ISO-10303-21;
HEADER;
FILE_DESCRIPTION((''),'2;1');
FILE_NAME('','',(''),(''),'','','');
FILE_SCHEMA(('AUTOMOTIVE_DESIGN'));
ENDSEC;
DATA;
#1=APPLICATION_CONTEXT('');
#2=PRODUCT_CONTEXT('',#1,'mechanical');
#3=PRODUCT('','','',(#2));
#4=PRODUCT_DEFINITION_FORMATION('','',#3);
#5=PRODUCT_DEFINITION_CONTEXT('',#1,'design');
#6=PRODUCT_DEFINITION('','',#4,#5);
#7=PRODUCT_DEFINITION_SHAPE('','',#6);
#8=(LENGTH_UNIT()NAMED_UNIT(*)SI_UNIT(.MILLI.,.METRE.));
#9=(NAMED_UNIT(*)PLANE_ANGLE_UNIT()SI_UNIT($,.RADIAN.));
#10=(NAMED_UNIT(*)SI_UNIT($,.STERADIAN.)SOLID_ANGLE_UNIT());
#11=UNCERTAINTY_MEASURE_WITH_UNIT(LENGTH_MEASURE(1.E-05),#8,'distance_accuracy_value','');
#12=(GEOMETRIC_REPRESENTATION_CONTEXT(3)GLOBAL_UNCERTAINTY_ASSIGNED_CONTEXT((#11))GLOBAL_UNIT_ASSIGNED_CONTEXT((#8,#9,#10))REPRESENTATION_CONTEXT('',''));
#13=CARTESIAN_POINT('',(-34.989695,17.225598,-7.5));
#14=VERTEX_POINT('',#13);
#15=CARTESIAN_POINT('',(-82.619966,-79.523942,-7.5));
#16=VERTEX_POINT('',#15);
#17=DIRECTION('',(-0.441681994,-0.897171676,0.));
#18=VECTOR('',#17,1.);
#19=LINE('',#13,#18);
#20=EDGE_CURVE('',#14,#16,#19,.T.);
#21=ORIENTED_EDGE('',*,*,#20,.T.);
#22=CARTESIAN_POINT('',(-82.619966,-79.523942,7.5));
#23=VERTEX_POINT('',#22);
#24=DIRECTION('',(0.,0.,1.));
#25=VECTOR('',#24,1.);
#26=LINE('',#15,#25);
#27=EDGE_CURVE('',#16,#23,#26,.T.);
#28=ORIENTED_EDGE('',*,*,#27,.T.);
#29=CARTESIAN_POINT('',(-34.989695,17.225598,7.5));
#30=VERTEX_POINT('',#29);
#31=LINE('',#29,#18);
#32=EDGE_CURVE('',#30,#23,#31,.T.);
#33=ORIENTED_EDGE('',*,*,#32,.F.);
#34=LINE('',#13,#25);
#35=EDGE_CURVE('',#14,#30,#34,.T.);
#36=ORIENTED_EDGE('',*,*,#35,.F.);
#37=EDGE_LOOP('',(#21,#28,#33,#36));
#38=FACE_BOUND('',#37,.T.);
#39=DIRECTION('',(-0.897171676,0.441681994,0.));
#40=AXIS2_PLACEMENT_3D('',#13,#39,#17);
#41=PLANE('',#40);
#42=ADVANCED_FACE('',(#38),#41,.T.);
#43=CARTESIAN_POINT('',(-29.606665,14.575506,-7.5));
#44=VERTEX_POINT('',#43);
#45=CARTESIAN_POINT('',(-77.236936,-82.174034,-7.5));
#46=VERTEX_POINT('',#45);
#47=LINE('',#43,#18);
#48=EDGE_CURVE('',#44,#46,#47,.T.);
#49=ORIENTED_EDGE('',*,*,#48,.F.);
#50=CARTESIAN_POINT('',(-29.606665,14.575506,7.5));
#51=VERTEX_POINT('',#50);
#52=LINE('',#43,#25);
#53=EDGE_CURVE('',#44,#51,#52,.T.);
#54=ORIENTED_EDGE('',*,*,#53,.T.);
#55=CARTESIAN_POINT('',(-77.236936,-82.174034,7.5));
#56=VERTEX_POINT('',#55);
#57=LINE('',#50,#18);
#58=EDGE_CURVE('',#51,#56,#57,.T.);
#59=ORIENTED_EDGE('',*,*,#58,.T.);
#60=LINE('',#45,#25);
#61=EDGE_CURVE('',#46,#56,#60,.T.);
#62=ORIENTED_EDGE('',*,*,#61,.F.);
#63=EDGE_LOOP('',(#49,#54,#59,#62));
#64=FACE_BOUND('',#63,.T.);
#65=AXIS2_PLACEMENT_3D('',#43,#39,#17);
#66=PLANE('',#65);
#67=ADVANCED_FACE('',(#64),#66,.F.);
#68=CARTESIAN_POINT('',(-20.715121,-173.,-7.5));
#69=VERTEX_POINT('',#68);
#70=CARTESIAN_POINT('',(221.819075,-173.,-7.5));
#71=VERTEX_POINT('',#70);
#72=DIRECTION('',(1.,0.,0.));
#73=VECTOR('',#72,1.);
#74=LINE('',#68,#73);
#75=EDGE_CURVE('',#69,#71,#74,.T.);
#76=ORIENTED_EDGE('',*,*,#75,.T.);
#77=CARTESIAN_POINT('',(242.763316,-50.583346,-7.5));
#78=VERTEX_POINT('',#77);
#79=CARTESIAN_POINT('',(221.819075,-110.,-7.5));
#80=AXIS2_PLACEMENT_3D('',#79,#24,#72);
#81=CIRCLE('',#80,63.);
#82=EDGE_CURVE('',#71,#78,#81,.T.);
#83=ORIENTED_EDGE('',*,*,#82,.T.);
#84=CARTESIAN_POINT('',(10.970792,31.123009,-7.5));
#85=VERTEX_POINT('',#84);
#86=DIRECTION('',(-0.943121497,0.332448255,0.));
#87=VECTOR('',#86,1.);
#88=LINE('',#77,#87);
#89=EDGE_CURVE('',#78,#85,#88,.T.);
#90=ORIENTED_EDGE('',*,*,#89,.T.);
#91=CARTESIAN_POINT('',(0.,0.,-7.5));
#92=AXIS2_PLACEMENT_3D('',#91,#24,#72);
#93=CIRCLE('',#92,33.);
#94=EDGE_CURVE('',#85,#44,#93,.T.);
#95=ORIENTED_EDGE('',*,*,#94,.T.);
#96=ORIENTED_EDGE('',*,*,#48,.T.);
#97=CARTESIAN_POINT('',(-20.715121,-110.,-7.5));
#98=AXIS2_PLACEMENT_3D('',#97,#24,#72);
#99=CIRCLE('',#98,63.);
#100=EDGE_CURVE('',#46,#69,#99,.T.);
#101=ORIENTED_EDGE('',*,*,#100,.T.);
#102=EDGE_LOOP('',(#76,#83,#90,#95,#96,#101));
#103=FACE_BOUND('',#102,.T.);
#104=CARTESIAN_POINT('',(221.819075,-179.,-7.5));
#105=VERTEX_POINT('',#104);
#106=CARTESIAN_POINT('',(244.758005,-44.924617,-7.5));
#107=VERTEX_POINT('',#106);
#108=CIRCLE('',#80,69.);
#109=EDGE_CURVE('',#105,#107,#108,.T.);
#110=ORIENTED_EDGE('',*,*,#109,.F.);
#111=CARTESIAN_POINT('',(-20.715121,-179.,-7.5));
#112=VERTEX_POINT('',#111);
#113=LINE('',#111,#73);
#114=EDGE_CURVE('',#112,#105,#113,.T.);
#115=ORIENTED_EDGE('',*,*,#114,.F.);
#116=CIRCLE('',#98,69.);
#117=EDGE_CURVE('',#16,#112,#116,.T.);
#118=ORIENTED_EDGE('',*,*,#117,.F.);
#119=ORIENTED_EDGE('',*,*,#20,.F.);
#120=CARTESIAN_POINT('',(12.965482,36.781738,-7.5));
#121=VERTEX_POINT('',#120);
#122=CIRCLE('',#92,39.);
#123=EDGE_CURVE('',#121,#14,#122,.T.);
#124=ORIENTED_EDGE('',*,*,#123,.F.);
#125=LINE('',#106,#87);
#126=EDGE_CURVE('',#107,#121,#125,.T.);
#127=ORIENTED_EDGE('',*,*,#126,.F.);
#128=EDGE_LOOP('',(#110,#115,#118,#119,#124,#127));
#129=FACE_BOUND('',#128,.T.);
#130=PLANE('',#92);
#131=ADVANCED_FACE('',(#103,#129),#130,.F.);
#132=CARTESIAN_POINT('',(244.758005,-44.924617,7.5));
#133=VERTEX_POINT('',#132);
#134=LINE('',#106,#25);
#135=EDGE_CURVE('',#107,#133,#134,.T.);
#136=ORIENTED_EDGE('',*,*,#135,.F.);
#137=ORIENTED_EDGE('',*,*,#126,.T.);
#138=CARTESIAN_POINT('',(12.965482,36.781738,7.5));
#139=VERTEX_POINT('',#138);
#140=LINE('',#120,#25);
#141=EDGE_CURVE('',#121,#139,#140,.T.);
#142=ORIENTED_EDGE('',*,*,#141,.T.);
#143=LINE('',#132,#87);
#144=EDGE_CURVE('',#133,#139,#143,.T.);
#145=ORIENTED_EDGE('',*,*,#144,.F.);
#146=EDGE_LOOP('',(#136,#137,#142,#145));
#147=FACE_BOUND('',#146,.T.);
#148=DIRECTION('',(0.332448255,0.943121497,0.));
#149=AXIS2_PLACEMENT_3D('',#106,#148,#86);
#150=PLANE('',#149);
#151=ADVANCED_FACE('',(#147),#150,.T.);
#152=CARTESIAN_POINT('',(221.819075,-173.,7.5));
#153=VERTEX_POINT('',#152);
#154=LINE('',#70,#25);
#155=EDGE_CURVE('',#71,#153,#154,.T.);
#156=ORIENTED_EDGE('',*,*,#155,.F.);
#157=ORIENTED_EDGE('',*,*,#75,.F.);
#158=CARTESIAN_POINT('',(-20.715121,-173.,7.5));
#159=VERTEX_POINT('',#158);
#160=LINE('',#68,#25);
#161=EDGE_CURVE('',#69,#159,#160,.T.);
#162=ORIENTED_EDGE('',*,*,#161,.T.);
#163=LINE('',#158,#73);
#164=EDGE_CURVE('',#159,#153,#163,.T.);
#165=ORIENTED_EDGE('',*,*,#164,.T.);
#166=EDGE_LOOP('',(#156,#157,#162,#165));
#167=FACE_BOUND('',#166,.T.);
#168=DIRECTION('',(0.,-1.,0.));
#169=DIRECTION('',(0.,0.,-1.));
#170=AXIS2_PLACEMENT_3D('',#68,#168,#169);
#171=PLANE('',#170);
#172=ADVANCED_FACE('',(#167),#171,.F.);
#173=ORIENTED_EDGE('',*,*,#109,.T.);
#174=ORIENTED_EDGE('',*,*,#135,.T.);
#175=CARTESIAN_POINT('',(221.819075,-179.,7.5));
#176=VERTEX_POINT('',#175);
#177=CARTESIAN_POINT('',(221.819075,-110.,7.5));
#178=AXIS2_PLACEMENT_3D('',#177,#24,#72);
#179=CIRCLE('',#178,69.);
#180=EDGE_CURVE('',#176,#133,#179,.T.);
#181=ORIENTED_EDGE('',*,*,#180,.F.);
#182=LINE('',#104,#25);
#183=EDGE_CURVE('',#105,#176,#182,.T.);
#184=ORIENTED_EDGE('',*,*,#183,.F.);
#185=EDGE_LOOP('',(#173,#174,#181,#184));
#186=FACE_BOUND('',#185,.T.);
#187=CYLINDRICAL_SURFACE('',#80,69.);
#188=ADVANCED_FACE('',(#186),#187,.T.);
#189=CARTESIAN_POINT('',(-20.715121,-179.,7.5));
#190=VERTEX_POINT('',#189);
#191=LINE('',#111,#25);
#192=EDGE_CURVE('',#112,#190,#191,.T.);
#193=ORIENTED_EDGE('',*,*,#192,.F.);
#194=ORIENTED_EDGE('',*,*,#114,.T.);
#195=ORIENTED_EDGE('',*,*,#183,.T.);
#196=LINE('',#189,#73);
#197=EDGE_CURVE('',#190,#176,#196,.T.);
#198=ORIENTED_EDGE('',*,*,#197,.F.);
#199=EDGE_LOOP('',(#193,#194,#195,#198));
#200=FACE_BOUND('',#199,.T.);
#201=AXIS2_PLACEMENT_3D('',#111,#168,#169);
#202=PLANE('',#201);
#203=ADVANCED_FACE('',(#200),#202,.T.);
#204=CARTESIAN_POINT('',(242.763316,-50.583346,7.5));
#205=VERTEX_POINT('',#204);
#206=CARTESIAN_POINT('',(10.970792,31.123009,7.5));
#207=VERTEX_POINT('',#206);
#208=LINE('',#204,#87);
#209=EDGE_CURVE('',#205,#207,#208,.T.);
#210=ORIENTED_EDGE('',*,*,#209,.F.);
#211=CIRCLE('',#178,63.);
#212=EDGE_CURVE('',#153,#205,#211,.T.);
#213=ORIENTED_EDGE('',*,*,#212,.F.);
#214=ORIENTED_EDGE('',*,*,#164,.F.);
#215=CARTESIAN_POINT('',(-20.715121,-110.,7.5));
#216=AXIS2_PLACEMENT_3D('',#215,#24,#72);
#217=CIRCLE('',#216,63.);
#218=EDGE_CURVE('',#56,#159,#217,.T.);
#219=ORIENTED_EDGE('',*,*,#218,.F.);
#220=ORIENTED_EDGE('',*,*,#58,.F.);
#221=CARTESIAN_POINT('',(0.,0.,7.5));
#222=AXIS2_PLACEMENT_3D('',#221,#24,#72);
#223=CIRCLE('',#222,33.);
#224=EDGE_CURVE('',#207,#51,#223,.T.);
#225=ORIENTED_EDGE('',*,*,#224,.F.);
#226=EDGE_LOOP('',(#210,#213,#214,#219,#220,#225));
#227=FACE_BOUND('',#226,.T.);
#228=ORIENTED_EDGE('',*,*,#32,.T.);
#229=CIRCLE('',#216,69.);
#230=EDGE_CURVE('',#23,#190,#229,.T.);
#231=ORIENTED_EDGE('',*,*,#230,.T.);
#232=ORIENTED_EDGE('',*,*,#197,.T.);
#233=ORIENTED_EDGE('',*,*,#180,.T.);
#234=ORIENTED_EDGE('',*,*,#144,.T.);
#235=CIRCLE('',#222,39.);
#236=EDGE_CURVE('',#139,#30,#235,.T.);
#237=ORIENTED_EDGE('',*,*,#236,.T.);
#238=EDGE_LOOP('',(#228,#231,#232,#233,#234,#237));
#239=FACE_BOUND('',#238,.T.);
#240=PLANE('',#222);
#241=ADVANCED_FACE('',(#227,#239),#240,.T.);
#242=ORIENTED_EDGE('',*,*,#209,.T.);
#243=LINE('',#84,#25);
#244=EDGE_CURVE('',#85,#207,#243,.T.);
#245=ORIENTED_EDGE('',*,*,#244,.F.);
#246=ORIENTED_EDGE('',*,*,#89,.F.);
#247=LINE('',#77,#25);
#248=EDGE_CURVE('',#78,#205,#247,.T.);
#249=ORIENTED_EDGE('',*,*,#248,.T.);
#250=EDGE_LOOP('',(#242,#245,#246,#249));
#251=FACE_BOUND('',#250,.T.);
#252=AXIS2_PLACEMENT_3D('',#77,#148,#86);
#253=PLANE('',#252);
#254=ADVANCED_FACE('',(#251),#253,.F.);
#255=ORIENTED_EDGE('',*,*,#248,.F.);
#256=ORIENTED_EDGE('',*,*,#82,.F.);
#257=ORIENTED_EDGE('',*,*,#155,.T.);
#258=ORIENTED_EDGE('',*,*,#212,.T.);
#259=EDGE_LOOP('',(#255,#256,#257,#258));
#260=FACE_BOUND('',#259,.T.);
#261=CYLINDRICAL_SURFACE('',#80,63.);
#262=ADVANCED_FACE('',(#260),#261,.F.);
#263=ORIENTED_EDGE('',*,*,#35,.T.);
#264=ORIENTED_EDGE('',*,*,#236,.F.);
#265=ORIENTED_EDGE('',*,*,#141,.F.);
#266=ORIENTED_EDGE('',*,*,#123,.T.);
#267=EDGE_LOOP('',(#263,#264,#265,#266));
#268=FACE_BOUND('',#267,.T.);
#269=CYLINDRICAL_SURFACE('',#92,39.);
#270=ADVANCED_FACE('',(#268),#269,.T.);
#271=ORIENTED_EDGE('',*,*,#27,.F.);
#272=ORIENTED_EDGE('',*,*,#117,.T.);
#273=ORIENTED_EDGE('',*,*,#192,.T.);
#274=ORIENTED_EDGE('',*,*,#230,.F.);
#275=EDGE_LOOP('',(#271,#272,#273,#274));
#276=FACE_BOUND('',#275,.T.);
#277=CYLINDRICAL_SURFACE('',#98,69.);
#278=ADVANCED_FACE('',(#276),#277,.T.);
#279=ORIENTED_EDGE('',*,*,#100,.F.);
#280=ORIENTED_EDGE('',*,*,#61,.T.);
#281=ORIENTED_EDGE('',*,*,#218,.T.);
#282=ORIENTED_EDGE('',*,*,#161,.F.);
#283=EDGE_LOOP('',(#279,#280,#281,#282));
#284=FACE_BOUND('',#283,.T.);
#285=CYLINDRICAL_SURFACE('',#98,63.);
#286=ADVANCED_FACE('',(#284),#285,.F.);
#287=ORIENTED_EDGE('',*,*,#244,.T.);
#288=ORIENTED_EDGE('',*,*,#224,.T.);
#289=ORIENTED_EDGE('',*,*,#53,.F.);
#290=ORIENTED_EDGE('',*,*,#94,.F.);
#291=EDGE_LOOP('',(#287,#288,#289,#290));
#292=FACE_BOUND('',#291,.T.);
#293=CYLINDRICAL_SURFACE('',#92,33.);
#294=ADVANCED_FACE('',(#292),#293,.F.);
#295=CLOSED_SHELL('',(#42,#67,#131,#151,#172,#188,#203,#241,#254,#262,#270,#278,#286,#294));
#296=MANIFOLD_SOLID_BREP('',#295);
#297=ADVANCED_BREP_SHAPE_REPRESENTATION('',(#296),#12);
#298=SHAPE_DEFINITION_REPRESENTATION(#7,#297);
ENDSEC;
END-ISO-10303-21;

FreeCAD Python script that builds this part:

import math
import FreeCAD as App
import Part
import Sketcher
from FreeCAD import Vector

doc = App.newDocument("Part")
params = doc.addObject("Spreadsheet::Sheet", "Params")
for row, (alias, value) in enumerate([
    ("sketch1_radius", "39 mm"),
    ("sketch1_radius2", "69 mm"),
    ("sketch1_radius3", "63 mm"),
    ("pad1_length", "7.5 mm"),
    ("pad1_length2", "7.5 mm"),
], start=1):
    params.set(f"A{row}", alias)
    params.set(f"B{row}", "=" + value)
    params.setAlias(f"B{row}", alias)

body = doc.addObject("PartDesign::Body", "Body")

# Sketch on XY plane
sketch1 = body.newObject("Sketcher::SketchObject", "Sketch")
sketch1.AttachmentSupport = (doc.getObject("XY_Plane"), [""])
sketch1.MapMode = "FlatFace"
sketch1.addGeometry([
    Part.LineSegment(Vector(245, -45, 0), Vector(13, 37, 0)),  # 0
    Part.ArcOfCircle(Part.Circle(Vector(0, 0, 0), Vector(0, 0, 1), 39), math.radians(71), math.radians(154)),  # 1
    Part.LineSegment(Vector(-35, 17, 0), Vector(-83, -80, 0)),  # 2
    Part.ArcOfCircle(Part.Circle(Vector(-21, -110, 0), Vector(0, 0, 1), 69), math.radians(154), math.radians(270)),  # 3
    Part.LineSegment(Vector(-21, -179, 0), Vector(222, -179, 0)),  # 4
    Part.ArcOfCircle(Part.Circle(Vector(222, -110, 0), Vector(0, 0, 1), 69), math.radians(-90), math.radians(71)),  # 5
    Part.LineSegment(Vector(11, 31, 0), Vector(243, -51, 0)),  # 6
    Part.ArcOfCircle(Part.Circle(Vector(222, -110, 0), Vector(0, 0, 1), 63), math.radians(-90), math.radians(71)),  # 7
    Part.LineSegment(Vector(222, -173, 0), Vector(-21, -173, 0)),  # 8
    Part.ArcOfCircle(Part.Circle(Vector(-21, -110, 0), Vector(0, 0, 1), 63), math.radians(154), math.radians(270)),  # 9
    Part.LineSegment(Vector(-77, -82, 0), Vector(-30, 15, 0)),  # 10
    Part.ArcOfCircle(Part.Circle(Vector(0, 0, 0), Vector(0, 0, 1), 33), math.radians(71), math.radians(154)),  # 11
], False)
sketch1.addConstraint([
    Sketcher.Constraint("Tangent", 0, 2, 1, 1),
    Sketcher.Constraint("Tangent", 1, 2, 2, 1),
    Sketcher.Constraint("Tangent", 2, 2, 3, 1),
    Sketcher.Constraint("Tangent", 3, 2, 4, 1),
    Sketcher.Constraint("Tangent", 4, 2, 5, 1),
    Sketcher.Constraint("Tangent", 5, 2, 0, 1),
    Sketcher.Constraint("Tangent", 6, 2, 7, 2),
    Sketcher.Constraint("Tangent", 7, 1, 8, 1),
    Sketcher.Constraint("Tangent", 8, 2, 9, 2),
    Sketcher.Constraint("Tangent", 9, 1, 10, 1),
    Sketcher.Constraint("Tangent", 10, 2, 11, 2),
    Sketcher.Constraint("Tangent", 11, 1, 6, 1),
    Sketcher.Constraint("Horizontal", 4),
    Sketcher.Constraint("Horizontal", 8),
    Sketcher.Constraint("Coincident", 1, 3, -1, 1),
    Sketcher.Constraint("Coincident", 11, 3, -1, 1),
    Sketcher.Constraint("Coincident", 7, 3, 5, 3),
    Sketcher.Constraint("Coincident", 9, 3, 3, 3),
    Sketcher.Constraint("Equal", 3, 5),
    Sketcher.Constraint("Parallel", 0, 6),
    Sketcher.Constraint("Radius", 1, 39.0),
    Sketcher.Constraint("Radius", 3, 69.0),
    Sketcher.Constraint("Radius", 7, 63.0),
    Sketcher.Constraint("DistanceY", 3, 3, -1, 1, 110.0),
    Sketcher.Constraint("Distance", 2, 107.83838),
    Sketcher.Constraint("DistanceX", 4, 1, 4, 2, 242.534196),
])
sketch1.setExpression("Constraints[20]", "Params.sketch1_radius")
sketch1.setExpression("Constraints[21]", "Params.sketch1_radius2")
sketch1.setExpression("Constraints[22]", "Params.sketch1_radius3")
pad1 = body.newObject("PartDesign::Pad", "Pad")
pad1.Profile = sketch1
pad1.Type = "TwoLengths"
pad1.setExpression("Length", "Params.pad1_length")
pad1.setExpression("Length2", "Params.pad1_length2")

doc.recompute()
